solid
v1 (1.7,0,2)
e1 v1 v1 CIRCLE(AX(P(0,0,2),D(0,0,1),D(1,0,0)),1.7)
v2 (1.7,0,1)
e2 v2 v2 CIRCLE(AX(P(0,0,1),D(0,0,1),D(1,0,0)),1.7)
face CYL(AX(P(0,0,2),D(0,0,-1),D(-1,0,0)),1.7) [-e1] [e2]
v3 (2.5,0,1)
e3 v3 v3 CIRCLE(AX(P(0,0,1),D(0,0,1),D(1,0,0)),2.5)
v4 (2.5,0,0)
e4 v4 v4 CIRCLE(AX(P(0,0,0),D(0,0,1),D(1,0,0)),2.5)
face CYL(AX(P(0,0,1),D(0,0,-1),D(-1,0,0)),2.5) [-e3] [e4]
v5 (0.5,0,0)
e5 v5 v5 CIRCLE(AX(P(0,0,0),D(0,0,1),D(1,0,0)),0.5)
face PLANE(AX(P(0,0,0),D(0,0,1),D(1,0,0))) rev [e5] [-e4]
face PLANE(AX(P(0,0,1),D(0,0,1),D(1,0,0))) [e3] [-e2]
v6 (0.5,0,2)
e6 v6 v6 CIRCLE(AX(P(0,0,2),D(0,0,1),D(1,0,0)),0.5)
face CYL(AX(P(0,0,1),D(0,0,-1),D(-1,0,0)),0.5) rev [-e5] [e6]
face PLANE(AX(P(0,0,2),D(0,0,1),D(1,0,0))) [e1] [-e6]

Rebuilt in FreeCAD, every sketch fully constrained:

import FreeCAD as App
import Part
import Sketcher

V = App.Vector

doc = App.newDocument("Part")
body = doc.addObject("PartDesign::Body", "Body")

# Sketch on XY plane
sketch1 = body.newObject("Sketcher::SketchObject", "Sketch")
sketch1.AttachmentSupport = (doc.getObject("XY_Plane"), [""])
sketch1.MapMode = "FlatFace"
sketch1.addGeometry(Part.Circle(V(0, 0, 0), V(0, 0, 1), 2.5), False)
sketch1.addGeometry(Part.Circle(V(0, 0, 0), V(0, 0, 1), 0.5), False)
sketch1.addConstraint(Sketcher.Constraint("Coincident", 0, 3, -1, 1))
sketch1.addConstraint(Sketcher.Constraint("Coincident", 1, 3, -1, 1))
sketch1.addConstraint(Sketcher.Constraint("Diameter", 0, 5.0))
sketch1.addConstraint(Sketcher.Constraint("Diameter", 1, 1.0))
pad1 = body.newObject("PartDesign::Pad", "Pad")
pad1.Profile = sketch1
pad1.Length = 1

# Sketch on XY plane
sketch2 = body.newObject("Sketcher::SketchObject", "Sketch001")
sketch2.AttachmentSupport = (doc.getObject("XY_Plane"), [""])
sketch2.MapMode = "FlatFace"
sketch2.AttachmentOffset = App.Placement(V(0, 0, 1), App.Rotation())
sketch2.addGeometry(Part.Circle(V(0, 0, 0), V(0, 0, 1), 1.7), False)
sketch2.addGeometry(Part.Circle(V(0, 0, 0), V(0, 0, 1), 0.5), False)
sketch2.addConstraint(Sketcher.Constraint("Coincident", 0, 3, -1, 1))
sketch2.addConstraint(Sketcher.Constraint("Coincident", 1, 3, -1, 1))
sketch2.addConstraint(Sketcher.Constraint("Diameter", 1, 1.0))
sketch2.addConstraint(Sketcher.Constraint("Diameter", 0, 3.4))
pad2 = body.newObject("PartDesign::Pad", "Pad001")
pad2.Profile = sketch2
pad2.Length = 1

doc.recompute()
